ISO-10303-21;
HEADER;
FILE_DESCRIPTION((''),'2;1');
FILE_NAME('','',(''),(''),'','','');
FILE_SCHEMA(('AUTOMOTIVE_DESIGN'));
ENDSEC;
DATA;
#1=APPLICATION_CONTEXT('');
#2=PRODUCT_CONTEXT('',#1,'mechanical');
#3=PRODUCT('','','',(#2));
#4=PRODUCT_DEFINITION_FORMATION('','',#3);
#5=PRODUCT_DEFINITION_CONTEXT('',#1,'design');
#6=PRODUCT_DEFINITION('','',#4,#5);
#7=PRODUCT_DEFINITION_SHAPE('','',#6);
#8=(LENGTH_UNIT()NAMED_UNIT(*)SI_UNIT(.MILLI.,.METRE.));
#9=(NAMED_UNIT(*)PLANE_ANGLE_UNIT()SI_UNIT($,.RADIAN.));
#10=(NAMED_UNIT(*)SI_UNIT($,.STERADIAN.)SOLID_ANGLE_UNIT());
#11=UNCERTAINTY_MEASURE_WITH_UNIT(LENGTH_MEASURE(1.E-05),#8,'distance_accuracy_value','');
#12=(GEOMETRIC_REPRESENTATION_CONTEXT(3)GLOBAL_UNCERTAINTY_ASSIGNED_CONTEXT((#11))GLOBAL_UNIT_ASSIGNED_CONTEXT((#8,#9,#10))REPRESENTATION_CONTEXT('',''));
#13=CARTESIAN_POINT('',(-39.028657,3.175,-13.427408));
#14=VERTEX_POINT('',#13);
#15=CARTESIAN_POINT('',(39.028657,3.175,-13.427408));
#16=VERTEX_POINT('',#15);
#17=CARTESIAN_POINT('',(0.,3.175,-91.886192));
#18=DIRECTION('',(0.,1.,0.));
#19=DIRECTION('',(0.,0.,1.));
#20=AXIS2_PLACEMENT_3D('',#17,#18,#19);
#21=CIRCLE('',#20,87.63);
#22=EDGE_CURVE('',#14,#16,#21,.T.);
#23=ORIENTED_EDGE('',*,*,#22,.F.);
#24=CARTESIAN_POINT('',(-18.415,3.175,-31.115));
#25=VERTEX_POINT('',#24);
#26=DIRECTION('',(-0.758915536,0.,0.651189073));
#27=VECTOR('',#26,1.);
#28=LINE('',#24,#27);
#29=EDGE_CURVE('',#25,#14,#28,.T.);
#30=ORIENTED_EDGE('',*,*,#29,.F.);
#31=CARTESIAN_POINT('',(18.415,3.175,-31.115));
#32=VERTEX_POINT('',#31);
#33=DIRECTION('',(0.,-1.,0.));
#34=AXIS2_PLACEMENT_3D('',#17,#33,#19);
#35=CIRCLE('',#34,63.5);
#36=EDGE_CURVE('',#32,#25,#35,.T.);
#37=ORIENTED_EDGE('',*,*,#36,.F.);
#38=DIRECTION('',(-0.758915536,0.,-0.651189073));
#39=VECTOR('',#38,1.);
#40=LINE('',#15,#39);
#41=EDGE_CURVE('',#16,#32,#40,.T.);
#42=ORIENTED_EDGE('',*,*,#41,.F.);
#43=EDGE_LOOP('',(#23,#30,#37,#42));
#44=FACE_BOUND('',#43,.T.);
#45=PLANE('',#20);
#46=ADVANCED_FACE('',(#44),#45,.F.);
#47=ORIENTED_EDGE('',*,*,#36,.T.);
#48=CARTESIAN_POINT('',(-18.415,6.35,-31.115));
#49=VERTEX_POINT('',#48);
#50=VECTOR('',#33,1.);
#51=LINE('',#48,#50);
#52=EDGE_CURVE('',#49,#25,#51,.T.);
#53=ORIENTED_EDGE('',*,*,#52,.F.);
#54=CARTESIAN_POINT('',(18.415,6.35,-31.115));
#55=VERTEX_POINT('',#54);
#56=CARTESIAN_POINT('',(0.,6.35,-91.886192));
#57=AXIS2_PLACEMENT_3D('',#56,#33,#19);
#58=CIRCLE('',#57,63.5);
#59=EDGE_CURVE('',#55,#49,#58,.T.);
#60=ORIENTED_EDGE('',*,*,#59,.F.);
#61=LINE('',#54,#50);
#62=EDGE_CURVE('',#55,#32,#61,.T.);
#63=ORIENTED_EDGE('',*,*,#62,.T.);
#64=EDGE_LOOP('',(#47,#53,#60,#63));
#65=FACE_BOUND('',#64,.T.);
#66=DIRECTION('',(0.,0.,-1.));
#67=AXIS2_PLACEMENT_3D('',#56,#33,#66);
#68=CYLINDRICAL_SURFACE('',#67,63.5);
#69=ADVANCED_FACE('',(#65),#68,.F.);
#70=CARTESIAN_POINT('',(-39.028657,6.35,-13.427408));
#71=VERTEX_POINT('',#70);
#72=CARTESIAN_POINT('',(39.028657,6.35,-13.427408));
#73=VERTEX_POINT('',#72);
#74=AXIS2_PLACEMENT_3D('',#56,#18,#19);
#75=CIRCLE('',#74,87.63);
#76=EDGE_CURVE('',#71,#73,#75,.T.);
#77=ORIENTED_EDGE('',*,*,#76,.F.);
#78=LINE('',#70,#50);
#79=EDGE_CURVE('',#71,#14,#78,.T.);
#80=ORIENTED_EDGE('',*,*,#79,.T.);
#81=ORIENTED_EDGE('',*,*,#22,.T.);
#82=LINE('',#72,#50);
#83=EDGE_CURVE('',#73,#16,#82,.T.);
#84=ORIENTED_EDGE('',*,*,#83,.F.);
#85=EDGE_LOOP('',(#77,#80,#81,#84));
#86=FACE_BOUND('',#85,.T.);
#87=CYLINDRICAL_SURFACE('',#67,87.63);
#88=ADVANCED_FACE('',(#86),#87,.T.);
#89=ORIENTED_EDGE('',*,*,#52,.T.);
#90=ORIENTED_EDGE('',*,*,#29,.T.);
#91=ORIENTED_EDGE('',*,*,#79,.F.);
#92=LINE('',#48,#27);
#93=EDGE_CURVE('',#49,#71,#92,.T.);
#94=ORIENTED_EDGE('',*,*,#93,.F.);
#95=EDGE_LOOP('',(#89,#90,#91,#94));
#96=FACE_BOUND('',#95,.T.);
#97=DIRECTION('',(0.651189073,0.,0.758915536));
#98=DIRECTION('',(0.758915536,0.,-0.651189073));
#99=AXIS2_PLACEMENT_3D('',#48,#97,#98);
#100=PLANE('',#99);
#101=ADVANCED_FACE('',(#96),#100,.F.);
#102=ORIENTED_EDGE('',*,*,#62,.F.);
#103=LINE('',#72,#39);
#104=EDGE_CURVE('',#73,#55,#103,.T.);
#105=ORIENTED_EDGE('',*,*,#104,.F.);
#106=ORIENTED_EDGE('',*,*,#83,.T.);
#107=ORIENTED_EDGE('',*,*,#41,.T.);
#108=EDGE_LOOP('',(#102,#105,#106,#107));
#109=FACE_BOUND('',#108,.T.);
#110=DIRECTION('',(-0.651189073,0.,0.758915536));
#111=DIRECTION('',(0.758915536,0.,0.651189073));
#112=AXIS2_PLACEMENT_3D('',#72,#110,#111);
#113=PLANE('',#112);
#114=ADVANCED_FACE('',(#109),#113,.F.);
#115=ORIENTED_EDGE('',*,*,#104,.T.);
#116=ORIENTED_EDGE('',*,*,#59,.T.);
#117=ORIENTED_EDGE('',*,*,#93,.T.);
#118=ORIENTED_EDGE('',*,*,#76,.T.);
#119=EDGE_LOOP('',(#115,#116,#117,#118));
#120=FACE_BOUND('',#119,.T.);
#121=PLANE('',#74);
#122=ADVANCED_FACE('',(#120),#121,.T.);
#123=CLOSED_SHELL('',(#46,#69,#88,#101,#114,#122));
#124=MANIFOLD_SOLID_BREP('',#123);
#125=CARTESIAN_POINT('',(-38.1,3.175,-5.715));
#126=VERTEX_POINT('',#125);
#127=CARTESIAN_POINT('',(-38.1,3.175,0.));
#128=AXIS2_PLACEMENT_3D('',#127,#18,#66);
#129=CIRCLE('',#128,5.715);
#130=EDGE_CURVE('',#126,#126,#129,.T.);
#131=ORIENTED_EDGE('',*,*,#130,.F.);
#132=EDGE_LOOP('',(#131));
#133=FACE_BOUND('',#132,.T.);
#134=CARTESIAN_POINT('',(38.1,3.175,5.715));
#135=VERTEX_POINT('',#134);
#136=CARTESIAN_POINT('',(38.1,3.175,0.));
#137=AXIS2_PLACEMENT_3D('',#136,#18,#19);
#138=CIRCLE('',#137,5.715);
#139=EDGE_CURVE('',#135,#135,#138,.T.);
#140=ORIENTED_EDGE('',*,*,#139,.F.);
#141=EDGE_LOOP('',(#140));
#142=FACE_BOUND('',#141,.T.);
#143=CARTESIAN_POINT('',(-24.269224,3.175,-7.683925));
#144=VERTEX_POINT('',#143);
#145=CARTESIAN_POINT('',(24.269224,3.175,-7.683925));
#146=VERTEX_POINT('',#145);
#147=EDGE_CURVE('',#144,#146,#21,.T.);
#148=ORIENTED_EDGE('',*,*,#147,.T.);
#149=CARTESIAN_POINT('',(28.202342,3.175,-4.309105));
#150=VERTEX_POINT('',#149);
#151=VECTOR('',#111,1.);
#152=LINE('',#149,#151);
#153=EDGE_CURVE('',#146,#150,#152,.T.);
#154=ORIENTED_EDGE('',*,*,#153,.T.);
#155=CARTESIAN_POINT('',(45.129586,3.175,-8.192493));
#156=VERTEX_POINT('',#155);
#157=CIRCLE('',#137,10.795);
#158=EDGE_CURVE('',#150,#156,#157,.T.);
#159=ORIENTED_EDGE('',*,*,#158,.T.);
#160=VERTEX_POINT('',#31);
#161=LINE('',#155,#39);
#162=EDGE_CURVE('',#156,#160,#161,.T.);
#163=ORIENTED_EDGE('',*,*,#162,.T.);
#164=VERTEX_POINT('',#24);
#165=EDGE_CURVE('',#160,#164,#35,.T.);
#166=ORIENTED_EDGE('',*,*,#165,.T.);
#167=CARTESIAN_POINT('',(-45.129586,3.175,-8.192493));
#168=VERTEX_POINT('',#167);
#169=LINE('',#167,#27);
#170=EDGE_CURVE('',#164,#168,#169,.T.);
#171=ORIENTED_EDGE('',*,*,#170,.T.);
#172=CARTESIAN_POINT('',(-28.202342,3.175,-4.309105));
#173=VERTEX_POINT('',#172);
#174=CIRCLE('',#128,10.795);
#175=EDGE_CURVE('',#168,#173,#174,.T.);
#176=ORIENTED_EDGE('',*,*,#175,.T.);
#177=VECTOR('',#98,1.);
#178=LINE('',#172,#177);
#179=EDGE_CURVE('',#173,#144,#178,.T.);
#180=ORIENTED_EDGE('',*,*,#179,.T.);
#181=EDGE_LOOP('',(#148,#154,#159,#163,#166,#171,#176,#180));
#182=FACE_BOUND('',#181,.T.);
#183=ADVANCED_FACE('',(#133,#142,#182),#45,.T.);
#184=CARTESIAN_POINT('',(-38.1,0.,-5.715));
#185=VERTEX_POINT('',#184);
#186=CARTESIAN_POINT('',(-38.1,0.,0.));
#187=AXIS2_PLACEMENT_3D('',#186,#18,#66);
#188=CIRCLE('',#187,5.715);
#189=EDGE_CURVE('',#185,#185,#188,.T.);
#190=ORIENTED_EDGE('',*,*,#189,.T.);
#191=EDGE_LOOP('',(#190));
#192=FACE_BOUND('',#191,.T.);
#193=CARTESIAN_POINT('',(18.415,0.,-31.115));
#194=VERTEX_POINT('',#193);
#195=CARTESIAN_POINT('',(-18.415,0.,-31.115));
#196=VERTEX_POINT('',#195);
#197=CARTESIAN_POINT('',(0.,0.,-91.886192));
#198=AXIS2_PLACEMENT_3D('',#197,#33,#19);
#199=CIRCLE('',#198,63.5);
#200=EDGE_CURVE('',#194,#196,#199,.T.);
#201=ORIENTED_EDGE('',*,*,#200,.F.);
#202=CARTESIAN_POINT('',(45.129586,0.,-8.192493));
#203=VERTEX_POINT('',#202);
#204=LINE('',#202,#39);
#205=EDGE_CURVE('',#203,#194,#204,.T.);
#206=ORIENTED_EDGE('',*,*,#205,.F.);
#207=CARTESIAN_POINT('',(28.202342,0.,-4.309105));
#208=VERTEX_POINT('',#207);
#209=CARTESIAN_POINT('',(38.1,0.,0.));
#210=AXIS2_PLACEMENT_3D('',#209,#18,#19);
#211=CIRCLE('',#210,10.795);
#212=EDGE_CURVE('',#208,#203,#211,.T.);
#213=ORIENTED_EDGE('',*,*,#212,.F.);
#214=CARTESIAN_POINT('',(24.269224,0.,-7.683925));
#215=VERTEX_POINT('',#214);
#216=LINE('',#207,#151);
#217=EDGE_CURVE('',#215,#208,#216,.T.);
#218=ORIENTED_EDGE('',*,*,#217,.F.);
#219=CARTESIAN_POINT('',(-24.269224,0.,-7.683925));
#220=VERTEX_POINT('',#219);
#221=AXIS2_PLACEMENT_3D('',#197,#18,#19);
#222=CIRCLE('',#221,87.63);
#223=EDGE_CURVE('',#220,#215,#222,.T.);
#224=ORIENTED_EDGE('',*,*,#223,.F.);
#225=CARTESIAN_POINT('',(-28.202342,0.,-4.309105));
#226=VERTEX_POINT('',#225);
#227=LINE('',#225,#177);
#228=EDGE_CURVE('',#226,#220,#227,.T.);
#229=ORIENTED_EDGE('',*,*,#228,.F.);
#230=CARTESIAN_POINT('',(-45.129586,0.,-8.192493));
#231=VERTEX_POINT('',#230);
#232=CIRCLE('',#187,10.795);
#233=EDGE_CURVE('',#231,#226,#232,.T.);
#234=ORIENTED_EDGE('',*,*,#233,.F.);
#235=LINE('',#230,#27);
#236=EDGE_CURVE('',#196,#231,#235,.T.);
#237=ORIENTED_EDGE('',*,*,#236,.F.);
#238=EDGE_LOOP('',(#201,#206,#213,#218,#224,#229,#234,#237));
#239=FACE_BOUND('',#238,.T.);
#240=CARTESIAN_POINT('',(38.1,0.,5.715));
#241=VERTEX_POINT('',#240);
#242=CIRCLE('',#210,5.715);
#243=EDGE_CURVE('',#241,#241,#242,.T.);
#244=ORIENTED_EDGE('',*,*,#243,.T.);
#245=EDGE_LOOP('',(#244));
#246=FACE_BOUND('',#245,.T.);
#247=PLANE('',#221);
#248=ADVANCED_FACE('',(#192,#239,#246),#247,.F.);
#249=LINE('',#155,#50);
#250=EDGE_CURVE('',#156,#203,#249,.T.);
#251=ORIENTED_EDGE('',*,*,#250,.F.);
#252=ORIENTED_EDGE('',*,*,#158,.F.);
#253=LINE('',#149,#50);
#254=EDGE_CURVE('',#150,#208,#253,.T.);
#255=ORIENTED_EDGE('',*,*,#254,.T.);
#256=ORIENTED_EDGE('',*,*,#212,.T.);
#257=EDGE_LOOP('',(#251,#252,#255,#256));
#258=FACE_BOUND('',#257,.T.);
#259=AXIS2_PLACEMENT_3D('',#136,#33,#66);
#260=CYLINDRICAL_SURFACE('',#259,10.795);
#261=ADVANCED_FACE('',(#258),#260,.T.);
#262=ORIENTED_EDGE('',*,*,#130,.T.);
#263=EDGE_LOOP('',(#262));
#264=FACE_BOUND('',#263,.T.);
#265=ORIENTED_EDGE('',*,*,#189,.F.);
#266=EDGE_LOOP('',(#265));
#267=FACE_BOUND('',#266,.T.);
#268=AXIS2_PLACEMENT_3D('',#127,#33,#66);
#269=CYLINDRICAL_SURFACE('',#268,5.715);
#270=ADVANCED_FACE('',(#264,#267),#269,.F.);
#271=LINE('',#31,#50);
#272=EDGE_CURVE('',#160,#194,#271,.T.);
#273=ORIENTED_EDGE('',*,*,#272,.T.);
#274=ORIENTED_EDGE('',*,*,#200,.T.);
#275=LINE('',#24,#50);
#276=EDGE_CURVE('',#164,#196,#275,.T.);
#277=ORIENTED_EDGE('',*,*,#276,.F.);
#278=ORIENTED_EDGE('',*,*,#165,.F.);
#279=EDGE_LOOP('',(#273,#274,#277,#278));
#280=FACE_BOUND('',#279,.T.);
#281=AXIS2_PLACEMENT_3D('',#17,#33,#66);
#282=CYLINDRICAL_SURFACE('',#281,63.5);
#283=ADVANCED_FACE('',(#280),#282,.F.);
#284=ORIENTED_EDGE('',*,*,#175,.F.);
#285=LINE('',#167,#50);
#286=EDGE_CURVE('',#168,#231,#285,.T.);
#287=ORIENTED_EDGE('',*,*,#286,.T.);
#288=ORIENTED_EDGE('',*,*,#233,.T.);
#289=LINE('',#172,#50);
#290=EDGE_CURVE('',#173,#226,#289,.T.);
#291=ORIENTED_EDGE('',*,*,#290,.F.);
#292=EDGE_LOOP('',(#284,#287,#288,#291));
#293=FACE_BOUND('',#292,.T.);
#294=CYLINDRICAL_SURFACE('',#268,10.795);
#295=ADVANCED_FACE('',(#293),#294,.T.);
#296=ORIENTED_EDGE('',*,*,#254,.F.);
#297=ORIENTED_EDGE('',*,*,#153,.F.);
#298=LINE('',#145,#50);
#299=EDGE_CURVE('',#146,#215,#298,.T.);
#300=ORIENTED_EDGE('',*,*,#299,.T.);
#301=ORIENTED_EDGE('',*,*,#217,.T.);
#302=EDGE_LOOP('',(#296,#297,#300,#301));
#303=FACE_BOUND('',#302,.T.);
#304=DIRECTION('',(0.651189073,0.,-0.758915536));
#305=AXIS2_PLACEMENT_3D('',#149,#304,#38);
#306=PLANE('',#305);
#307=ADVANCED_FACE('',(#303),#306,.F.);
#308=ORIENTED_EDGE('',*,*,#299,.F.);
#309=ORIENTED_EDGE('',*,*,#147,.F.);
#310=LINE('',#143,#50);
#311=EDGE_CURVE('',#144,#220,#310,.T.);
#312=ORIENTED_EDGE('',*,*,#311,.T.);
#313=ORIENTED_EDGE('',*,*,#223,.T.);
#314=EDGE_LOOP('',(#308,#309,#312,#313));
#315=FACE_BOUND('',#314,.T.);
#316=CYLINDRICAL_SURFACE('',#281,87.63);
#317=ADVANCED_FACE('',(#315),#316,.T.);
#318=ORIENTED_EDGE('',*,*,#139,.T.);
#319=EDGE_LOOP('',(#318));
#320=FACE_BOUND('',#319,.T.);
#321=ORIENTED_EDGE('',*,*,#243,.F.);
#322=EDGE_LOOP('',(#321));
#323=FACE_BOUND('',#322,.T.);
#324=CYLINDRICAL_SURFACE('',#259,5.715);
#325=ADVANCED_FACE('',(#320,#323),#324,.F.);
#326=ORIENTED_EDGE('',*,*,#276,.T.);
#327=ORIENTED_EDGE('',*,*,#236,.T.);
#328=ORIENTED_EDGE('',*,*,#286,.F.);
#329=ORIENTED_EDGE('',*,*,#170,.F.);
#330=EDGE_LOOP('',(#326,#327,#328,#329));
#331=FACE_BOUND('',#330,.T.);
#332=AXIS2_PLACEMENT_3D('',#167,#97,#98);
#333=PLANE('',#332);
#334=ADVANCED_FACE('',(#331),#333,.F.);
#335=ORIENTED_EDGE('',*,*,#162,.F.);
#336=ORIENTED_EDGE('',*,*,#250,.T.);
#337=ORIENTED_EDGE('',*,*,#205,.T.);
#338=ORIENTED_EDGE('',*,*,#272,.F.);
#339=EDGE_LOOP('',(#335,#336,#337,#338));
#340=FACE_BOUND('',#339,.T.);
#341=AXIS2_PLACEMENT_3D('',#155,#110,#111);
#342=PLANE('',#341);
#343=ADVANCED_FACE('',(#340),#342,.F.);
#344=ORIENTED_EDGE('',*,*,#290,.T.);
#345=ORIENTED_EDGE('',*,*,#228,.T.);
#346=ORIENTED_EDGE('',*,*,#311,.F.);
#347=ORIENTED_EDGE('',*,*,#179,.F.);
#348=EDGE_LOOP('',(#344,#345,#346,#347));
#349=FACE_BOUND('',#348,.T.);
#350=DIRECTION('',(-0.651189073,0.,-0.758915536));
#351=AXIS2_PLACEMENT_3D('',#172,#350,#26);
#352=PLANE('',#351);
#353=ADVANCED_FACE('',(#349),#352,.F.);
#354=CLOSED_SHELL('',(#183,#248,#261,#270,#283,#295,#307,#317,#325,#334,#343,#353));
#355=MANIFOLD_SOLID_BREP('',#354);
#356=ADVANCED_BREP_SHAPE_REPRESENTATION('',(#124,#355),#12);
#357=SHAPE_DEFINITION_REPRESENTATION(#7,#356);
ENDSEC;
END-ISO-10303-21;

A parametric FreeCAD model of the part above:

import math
import FreeCAD as App
import Part
import Sketcher
Q = App.Units.Quantity

doc = App.newDocument("Part")
body = doc.addObject("PartDesign::Body", "Body")

sketch1 = doc.addObject("Sketcher::SketchObject", "Sketch")
body.addObject(sketch1)
sketch1.AttachmentSupport = (doc.XZ_Plane, [""])
sketch1.MapMode = "FlatFace"
sketch1.addGeometry(Part.LineSegment(App.Vector(45, -8, 0), App.Vector(18, -31, 0)), False)
sketch1.addGeometry(Part.ArcOfCircle(Part.Circle(App.Vector(0, -92, 0), App.Vector(0, 0, 1), 64), math.radians(73), math.radians(107)), False)
sketch1.addGeometry(Part.LineSegment(App.Vector(-18, -31, 0), App.Vector(-45, -8, 0)), False)
sketch1.addGeometry(Part.ArcOfCircle(Part.Circle(App.Vector(-38, 0, 0), App.Vector(0, 0, 1), 11), math.radians(-24), math.radians(229)), False)
sketch1.addGeometry(Part.LineSegment(App.Vector(-28, -4, 0), App.Vector(-24, -8, 0)), False)
sketch1.addGeometry(Part.ArcOfCircle(Part.Circle(App.Vector(0, -92, 0), App.Vector(0, 0, 1), 88), math.radians(74), math.radians(106)), False)
sketch1.addGeometry(Part.LineSegment(App.Vector(24, -8, 0), App.Vector(28, -4, 0)), False)
sketch1.addGeometry(Part.ArcOfCircle(Part.Circle(App.Vector(38, 0, 0), App.Vector(0, 0, 1), 11), math.radians(-49), math.radians(204)), False)
sketch1.addGeometry(Part.Circle(App.Vector(-38, 0, 0), App.Vector(0, 0, 1), 6), False)
sketch1.addGeometry(Part.Circle(App.Vector(38, 0, 0), App.Vector(0, 0, 1), 6), False)
sketch1.addConstraint(Sketcher.Constraint("Coincident", 0, 2, 1, 1))
sketch1.addConstraint(Sketcher.Constraint("Coincident", 1, 2, 2, 1))
sketch1.addConstraint(Sketcher.Constraint("Tangent", 2, 2, 3, 2))
sketch1.addConstraint(Sketcher.Constraint("Coincident", 3, 1, 4, 1))
sketch1.addConstraint(Sketcher.Constraint("Coincident", 4, 2, 5, 2))
sketch1.addConstraint(Sketcher.Constraint("Coincident", 5, 1, 6, 1))
sketch1.addConstraint(Sketcher.Constraint("Coincident", 6, 2, 7, 2))
sketch1.addConstraint(Sketcher.Constraint("Tangent", 7, 1, 0, 1))
sketch1.addConstraint(Sketcher.Constraint("Coincident", 5, 3, 1, 3))
sketch1.addConstraint(Sketcher.Constraint("Coincident", 8, 3, 3, 3))
sketch1.addConstraint(Sketcher.Constraint("Coincident", 9, 3, 7, 3))
sketch1.addConstraint(Sketcher.Constraint("Equal", 3, 7))
sketch1.addConstraint(Sketcher.Constraint("Equal", 8, 9))
sketch1.addConstraint(Sketcher.Constraint("Symmetric", 3, 3, 7, 3, -1, 1))
sketch1.addConstraint(Sketcher.Constraint("Symmetric", 0, 2, 1, 2, -2))
sketch1.addConstraint(Sketcher.Constraint("Symmetric", 3, 1, 6, 2, -2))
sketch1.addConstraint(Sketcher.Constraint("Parallel", 2, 4))
sketch1.addConstraint(Sketcher.Constraint("Parallel", 0, 6))
sketch1.addConstraint(Sketcher.Constraint("Radius", 1, Q("2.5 in")))
sketch1.addConstraint(Sketcher.Constraint("Diameter", 8, Q("0.45 in")))
sketch1.addConstraint(Sketcher.Constraint("Radius", 5, Q("3.45 in")))
sketch1.addConstraint(Sketcher.Constraint("Radius", 3, Q("0.425 in")))
sketch1.addConstraint(Sketcher.Constraint("DistanceX", 3, 3, 7, 3, Q("3 in")))
sketch1.addConstraint(Sketcher.Constraint("DistanceX", 1, 2, 0, 2, Q("1.45 in")))
sketch1.addConstraint(Sketcher.Constraint("DistanceY", 0, 2, -1, 1, Q("1.225 in")))
sketch1.addConstraint(Sketcher.Constraint("Distance", 4, Q("5.182551 mm")))
pad1 = doc.addObject("PartDesign::Pad", "Pad")
body.addObject(pad1)
pad1.Profile = sketch1
pad1.Length = Q("0.125 in")
pad1.Reversed = True
body2 = doc.addObject("PartDesign::Body", "Body001")

sketch2 = doc.addObject("Sketcher::SketchObject", "Sketch001")
body2.addObject(sketch2)
sketch2.AttachmentSupport = (doc.getObject("XZ_Plane001"), [""])
sketch2.MapMode = "FlatFace"
sketch2.AttachmentOffset = App.Placement(App.Vector(0, 0, -0.125 * 25.4), App.Rotation())
sketch2.addGeometry(Part.LineSegment(App.Vector(-18, -31, 0), App.Vector(-39, -13, 0)), False)
sketch2.addGeometry(Part.ArcOfCircle(Part.Circle(App.Vector(0, -92, 0), App.Vector(0, 0, 1), 88), math.radians(64), math.radians(116)), False)
sketch2.addGeometry(Part.LineSegment(App.Vector(39, -13, 0), App.Vector(18, -31, 0)), False)
sketch2.addGeometry(Part.ArcOfCircle(Part.Circle(App.Vector(0, -92, 0), App.Vector(0, 0, 1), 64), math.radians(73), math.radians(107)), False)
sketch2.addConstraint(Sketcher.Constraint("Coincident", 0, 2, 1, 2))
sketch2.addConstraint(Sketcher.Constraint("Coincident", 1, 1, 2, 1))
sketch2.addConstraint(Sketcher.Constraint("Coincident", 2, 2, 3, 1))
sketch2.addConstraint(Sketcher.Constraint("Coincident", 3, 2, 0, 1))
sketch2.addConstraint(Sketcher.Constraint("Coincident", 3, 3, 1, 3))
sketch2.addConstraint(Sketcher.Constraint("Symmetric", 0, 2, 1, 1, -2))
sketch2.addConstraint(Sketcher.Constraint("Horizontal", 2, 2, 3, 2))
sketch2.addConstraint(Sketcher.Constraint("Radius", 3, Q("2.5 in")))
sketch2.addConstraint(Sketcher.Constraint("Radius", 1, Q("3.45 in")))
sketch2.addConstraint(Sketcher.Constraint("DistanceX", 3, 2, 2, 2, Q("1.45 in")))
sketch2.addConstraint(Sketcher.Constraint("DistanceY", 2, 2, -1, 1, Q("1.225 in")))
sketch2.addConstraint(Sketcher.Constraint("Distance", 0, Q("27.161992 mm")))
pad2 = doc.addObject("PartDesign::Pad", "Pad001")
body2.addObject(pad2)
pad2.Profile = sketch2
pad2.Length = Q("0.125 in")
pad2.Reversed = True

doc.recompute()
